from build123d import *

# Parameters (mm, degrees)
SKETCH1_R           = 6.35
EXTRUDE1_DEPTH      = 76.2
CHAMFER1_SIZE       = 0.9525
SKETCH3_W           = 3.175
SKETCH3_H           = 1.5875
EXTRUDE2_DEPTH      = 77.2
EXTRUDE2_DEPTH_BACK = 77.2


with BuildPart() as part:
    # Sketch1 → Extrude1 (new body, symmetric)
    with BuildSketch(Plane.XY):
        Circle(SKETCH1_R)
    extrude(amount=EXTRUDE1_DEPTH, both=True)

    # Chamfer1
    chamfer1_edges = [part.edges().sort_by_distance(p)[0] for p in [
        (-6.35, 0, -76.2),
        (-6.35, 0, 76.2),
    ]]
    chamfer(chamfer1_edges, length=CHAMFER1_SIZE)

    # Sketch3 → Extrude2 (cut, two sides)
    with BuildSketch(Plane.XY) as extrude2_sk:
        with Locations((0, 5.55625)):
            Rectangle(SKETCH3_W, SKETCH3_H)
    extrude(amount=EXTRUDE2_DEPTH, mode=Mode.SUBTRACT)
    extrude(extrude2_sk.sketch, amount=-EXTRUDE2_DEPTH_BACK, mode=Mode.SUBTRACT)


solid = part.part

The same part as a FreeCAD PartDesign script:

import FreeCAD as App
import Part
import Sketcher
Q = App.Units.Quantity


def edges_at(feature, points):
    """Names of the edges that pass closest to the given points."""
    edges = feature.Shape.Edges
    near = lambda p: min(range(len(edges)), key=lambda i: edges[i].distToShape(Part.Vertex(*p))[0])
    return sorted({f"Edge{near(p) + 1}" for p in points})


def add_polygon(sketch, points):
    """Adds a closed chain of lines whose ends are joined by coincident constraints."""
    first, n = sketch.GeometryCount, len(points)
    for a, b in zip(points, points[1:] + points[:1]):
        sketch.addGeometry(Part.LineSegment(App.Vector(*a, 0), App.Vector(*b, 0)), False)
    for i in range(n):
        sketch.addConstraint(Sketcher.Constraint("Coincident", first + i, 2, first + (i + 1) % n, 1))

doc = App.newDocument("Part")
body = doc.addObject("PartDesign::Body", "Body")

sketch1 = body.newObject("Sketcher::SketchObject", "Sketch")
sketch1.AttachmentSupport = (doc.getObject("XY_Plane"), [""])
sketch1.MapMode = "FlatFace"
sketch1.addGeometry(Part.Circle(App.Vector(0, 0, 0), App.Vector(0, 0, 1), 6.35), False)
sketch1.addConstraint([
    Sketcher.Constraint("Coincident", 0, 3, -1, 1),
    Sketcher.Constraint("Diameter", 0, Q("0.5 in")),
])
pad1 = body.newObject("PartDesign::Pad", "Pad")
pad1.Profile = sketch1
pad1.Length = Q("6 in")
pad1.Midplane = True
doc.recompute()

chamfer = body.newObject("PartDesign::Chamfer", "Chamfer")
chamfer.Base = (pad1, edges_at(pad1, [(-6.35, 0, -76.2), (-6.35, 0, 76.2)]))
chamfer.Size = Q("0.0375 in")

sketch2 = body.newObject("Sketcher::SketchObject", "Sketch001")
sketch2.AttachmentSupport = (doc.getObject("XY_Plane"), [""])
sketch2.MapMode = "FlatFace"
add_polygon(sketch2, [(-1.5875, 6.35), (-1.5875, 4.7625), (1.5875, 4.7625), (1.5875, 6.35)])
sketch2.addConstraint([
    Sketcher.Constraint("Vertical", 0),
    Sketcher.Constraint("Horizontal", 1),
    Sketcher.Constraint("Vertical", 2),
    Sketcher.Constraint("Horizontal", 3),
    Sketcher.Constraint("DistanceX", 1, 1, 1, 2, Q("0.125 in")),
    Sketcher.Constraint("DistanceY", 0, 2, 0, 1, Q("0.0625 in")),
    Sketcher.Constraint("DistanceY", -1, 1, 2, 2, Q("0.25 in")),
    Sketcher.Constraint("DistanceX", 0, 2, -1, 1, Q("0.0625 in")),
])
pocket1 = body.newObject("PartDesign::Pocket", "Pocket")
pocket1.Profile = sketch2
pocket1.Type = "ThroughAll"
pocket1.Midplane = True

doc.recompute()
